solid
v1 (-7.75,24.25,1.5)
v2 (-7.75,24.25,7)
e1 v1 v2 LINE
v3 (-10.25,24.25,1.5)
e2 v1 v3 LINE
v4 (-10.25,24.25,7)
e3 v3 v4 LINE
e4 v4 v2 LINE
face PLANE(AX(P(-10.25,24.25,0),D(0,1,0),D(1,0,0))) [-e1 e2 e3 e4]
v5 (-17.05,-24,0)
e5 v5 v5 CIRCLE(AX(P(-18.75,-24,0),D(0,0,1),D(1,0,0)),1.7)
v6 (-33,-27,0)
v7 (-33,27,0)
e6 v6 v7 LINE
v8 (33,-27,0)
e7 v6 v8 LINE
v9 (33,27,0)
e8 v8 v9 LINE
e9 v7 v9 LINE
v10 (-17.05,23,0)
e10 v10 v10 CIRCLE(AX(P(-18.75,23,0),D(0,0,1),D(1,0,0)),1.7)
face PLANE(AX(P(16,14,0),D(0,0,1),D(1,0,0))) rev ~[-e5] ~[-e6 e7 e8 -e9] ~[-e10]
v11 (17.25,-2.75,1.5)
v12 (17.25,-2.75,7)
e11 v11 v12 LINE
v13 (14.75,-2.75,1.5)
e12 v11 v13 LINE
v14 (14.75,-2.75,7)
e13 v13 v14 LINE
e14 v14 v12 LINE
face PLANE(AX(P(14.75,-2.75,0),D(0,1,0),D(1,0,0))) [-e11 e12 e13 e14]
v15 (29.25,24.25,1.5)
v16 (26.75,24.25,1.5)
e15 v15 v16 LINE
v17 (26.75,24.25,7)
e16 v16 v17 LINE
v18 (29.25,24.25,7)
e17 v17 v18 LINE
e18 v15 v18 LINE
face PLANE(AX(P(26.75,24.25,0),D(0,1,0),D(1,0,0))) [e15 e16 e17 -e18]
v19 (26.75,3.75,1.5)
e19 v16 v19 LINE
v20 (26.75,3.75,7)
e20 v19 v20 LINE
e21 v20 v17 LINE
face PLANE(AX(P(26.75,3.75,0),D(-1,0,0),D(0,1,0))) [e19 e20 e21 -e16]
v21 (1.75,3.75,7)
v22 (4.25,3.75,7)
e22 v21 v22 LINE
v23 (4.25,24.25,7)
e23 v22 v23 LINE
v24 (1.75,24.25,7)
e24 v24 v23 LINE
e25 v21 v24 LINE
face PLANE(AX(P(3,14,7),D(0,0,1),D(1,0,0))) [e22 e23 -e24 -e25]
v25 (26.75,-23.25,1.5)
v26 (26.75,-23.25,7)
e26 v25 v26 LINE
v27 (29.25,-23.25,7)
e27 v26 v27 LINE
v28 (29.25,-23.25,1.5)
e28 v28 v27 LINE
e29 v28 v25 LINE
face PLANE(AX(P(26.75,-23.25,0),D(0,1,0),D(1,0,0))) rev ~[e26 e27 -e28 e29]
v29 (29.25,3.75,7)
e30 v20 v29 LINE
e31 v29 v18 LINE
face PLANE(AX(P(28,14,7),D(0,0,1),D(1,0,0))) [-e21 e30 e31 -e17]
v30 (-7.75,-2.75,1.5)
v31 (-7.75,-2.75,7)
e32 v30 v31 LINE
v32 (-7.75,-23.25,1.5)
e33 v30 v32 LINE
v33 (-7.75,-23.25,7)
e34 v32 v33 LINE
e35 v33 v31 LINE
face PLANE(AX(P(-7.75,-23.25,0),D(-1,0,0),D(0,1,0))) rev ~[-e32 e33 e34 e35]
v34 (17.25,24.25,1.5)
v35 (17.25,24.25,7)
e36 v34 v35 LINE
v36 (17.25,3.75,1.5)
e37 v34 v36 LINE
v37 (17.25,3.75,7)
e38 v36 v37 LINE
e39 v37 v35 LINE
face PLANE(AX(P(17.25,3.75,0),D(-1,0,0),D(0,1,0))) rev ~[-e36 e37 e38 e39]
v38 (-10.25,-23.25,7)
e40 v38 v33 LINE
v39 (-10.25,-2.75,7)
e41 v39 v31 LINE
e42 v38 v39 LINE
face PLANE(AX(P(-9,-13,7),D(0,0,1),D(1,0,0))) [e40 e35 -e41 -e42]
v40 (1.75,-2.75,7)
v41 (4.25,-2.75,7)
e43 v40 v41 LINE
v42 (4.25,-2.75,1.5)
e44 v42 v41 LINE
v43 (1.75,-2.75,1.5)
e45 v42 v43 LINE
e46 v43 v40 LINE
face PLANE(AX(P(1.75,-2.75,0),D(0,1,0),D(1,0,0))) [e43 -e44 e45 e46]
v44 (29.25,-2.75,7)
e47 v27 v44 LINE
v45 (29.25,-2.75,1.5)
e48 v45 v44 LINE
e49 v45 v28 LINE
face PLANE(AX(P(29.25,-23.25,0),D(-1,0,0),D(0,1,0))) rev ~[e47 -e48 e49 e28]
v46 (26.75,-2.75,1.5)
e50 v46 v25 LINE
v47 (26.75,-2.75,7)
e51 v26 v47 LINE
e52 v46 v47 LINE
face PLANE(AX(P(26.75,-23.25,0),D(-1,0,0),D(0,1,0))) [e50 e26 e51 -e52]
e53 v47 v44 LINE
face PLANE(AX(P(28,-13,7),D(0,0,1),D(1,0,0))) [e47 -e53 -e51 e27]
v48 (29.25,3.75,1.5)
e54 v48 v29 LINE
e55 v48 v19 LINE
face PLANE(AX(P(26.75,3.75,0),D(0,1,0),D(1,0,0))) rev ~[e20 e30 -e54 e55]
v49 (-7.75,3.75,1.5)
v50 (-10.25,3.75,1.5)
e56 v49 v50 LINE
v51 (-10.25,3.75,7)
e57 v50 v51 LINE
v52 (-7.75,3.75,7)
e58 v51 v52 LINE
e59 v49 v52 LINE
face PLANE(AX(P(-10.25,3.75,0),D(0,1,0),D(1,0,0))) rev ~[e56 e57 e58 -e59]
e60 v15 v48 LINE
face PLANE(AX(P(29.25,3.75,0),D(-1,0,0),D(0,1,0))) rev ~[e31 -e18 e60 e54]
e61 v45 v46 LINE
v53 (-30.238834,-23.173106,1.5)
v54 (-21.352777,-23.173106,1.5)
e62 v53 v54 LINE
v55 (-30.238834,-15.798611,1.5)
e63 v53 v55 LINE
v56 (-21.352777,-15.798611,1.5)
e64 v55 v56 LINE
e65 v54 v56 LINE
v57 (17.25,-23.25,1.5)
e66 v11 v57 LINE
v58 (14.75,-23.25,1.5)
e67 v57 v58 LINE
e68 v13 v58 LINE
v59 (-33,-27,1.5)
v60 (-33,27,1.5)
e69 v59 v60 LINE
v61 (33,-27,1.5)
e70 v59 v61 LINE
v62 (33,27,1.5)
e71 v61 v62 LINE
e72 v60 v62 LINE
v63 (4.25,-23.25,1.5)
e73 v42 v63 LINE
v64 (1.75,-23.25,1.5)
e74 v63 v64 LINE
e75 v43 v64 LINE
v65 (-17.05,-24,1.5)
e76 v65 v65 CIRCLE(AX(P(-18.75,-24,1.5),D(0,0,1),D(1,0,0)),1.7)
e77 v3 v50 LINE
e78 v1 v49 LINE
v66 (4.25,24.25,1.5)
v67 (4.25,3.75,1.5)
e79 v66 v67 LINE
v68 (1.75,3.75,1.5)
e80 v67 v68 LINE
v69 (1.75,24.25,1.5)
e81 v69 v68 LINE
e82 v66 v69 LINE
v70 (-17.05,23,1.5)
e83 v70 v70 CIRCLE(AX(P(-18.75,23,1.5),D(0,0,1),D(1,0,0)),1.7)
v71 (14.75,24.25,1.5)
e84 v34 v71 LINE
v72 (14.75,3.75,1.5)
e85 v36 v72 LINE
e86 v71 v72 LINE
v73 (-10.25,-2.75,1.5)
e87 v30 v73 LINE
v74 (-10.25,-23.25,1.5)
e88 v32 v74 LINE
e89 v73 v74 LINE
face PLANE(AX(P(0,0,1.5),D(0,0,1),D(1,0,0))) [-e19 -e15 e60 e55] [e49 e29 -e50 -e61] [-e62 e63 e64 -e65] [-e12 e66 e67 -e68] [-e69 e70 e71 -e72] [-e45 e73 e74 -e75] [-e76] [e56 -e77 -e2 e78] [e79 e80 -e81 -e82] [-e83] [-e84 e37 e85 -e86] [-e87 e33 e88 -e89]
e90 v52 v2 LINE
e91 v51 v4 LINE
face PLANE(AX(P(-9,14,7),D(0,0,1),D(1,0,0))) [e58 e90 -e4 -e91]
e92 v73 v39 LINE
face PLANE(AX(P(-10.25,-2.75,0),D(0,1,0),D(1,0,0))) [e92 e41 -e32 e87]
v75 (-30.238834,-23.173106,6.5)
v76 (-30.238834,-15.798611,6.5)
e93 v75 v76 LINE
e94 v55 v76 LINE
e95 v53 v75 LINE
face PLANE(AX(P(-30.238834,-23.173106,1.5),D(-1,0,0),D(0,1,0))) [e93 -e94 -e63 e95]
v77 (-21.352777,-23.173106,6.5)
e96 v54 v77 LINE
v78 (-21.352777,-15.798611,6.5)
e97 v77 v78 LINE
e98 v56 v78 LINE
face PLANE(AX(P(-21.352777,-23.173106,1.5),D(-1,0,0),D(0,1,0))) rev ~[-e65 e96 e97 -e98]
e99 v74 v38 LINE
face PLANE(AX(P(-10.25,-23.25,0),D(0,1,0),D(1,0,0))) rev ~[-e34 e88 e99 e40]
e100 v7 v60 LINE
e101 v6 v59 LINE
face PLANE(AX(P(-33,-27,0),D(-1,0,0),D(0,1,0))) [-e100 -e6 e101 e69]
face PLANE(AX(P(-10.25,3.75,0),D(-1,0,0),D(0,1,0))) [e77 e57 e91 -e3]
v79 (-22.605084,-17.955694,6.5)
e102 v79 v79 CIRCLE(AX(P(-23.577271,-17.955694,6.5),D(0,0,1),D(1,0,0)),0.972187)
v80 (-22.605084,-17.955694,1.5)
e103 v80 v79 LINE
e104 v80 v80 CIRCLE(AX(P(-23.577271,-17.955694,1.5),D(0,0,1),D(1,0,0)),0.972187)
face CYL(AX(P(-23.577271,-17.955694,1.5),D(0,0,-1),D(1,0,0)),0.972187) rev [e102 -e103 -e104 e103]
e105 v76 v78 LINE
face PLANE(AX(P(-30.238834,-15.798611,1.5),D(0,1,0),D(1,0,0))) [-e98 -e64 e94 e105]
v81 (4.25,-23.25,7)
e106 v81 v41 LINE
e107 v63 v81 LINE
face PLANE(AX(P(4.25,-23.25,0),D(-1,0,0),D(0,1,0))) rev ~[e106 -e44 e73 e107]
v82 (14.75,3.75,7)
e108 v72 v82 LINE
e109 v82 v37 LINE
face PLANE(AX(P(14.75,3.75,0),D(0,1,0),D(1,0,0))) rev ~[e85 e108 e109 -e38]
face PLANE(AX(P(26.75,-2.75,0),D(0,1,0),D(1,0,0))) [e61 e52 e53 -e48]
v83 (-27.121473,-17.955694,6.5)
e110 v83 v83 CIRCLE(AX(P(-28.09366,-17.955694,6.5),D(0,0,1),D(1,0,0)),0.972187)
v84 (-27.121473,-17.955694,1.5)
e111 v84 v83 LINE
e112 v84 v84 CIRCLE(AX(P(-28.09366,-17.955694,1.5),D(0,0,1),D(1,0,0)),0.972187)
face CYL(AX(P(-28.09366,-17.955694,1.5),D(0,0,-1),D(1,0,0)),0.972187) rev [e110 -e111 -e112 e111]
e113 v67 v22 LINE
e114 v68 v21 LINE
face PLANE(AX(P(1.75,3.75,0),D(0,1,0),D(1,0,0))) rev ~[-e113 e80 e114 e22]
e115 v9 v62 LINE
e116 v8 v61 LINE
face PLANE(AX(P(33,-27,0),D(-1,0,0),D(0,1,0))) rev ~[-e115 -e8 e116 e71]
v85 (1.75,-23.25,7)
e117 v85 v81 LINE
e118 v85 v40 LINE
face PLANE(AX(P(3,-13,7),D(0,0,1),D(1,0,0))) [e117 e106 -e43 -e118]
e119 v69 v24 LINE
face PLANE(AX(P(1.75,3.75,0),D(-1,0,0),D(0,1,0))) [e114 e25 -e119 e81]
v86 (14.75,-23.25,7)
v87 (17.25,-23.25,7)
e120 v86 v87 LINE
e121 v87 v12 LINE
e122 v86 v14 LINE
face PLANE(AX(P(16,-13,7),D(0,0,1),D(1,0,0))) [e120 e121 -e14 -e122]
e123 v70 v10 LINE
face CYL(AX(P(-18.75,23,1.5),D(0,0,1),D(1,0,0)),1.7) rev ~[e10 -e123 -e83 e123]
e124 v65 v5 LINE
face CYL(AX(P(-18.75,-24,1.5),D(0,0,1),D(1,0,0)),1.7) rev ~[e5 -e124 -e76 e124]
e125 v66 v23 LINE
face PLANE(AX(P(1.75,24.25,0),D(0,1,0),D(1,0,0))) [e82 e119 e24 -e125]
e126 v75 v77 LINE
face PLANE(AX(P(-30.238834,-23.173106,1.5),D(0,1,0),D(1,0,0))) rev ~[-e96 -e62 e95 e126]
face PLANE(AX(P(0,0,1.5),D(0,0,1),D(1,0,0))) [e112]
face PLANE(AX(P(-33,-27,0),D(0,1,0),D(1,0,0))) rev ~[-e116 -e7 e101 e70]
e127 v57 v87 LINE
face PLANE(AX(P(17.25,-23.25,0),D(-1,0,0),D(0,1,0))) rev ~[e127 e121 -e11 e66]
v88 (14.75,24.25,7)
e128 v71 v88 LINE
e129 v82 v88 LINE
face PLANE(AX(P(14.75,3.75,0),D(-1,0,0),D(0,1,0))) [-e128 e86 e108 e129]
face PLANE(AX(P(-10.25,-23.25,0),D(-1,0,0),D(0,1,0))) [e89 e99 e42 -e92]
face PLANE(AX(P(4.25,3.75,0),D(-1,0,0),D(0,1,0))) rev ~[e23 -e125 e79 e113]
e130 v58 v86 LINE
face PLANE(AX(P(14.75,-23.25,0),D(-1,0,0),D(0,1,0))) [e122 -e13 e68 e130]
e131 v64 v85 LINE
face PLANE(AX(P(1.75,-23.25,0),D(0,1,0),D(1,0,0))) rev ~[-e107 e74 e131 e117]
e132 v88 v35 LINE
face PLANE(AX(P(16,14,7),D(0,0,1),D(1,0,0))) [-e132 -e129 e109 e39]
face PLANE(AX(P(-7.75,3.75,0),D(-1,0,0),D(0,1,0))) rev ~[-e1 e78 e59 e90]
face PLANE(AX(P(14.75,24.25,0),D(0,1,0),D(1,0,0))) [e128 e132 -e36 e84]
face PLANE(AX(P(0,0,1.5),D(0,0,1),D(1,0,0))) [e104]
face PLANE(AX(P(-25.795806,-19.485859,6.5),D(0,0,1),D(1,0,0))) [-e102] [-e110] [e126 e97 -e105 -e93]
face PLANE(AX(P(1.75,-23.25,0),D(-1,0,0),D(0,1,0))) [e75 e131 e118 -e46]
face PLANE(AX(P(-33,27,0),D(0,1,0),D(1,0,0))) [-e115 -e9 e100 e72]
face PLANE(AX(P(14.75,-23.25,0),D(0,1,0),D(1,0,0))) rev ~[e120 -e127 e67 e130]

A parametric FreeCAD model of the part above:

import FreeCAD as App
import Part
import Sketcher

V = App.Vector

doc = App.newDocument("Part")
params = doc.addObject("Spreadsheet::Sheet", "Params")
for row, (alias, value) in enumerate([
    ("sketch1_width", "66 mm"),
    ("sketch1_height", "54 mm"),
    ("pad1_length", "1.5 mm"),
    ("sketch2_width", "2.5 mm"),
    ("sketch2_height", "20.5 mm"),
    ("pad2_length", "7 mm"),
    ("sketch3_width", "2.5 mm"),
    ("sketch3_height", "20.5 mm"),
    ("pad3_length", "7 mm"),
    ("linearpattern_pitch", "27 mm"),
    ("pad4_length", "5 mm"),
    ("sketch5_diameter", "3.4 mm"),
    ("pocket1_length", "25 mm"),
], start=1):
    params.set(f"A{row}", alias)
    params.set(f"B{row}", "=" + value)
    params.setAlias(f"B{row}", alias)

body = doc.addObject("PartDesign::Body", "Body")

# Sketch on XY plane
sketch1 = body.newObject("Sketcher::SketchObject", "Sketch")
sketch1.AttachmentSupport = (doc.getObject("XY_Plane"), [""])
sketch1.MapMode = "FlatFace"
sketch1.addGeometry(Part.LineSegment(V(-33, 27, 0), V(-33, -27, 0)), False)
sketch1.addGeometry(Part.LineSegment(V(-33, -27, 0), V(33, -27, 0)), False)
sketch1.addGeometry(Part.LineSegment(V(33, -27, 0), V(33, 27, 0)), False)
sketch1.addGeometry(Part.LineSegment(V(33, 27, 0), V(-33, 27, 0)), False)
sketch1.addConstraint(Sketcher.Constraint("Coincident", 0, 2, 1, 1))
sketch1.addConstraint(Sketcher.Constraint("Coincident", 1, 2, 2, 1))
sketch1.addConstraint(Sketcher.Constraint("Coincident", 2, 2, 3, 1))
sketch1.addConstraint(Sketcher.Constraint("Coincident", 3, 2, 0, 1))
sketch1.addConstraint(Sketcher.Constraint("Vertical", 0))
sketch1.addConstraint(Sketcher.Constraint("Horizontal", 1))
sketch1.addConstraint(Sketcher.Constraint("Vertical", 2))
sketch1.addConstraint(Sketcher.Constraint("Horizontal", 3))
sketch1.addConstraint(Sketcher.Constraint("Symmetric", 0, 2, 2, 2, -1, 1))
sketch1.addConstraint(Sketcher.Constraint("DistanceX", 1, 1, 1, 2, 66.0))
sketch1.addConstraint(Sketcher.Constraint("DistanceY", 0, 2, 0, 1, 54.0))
sketch1.setExpression("Constraints[9]", "Params.sketch1_width")
sketch1.setExpression("Constraints[10]", "Params.sketch1_height")
pad1 = body.newObject("PartDesign::Pad", "Pad")
pad1.Profile = sketch1
pad1.setExpression("Length", "Params.pad1_length")

# Sketch on XY plane
sketch2 = body.newObject("Sketcher::SketchObject", "Sketch001")
sketch2.AttachmentSupport = (doc.getObject("XY_Plane"), [""])
sketch2.MapMode = "FlatFace"
sketch2.addGeometry(Part.LineSegment(V(-10.2, -2.8, 0), V(-10.2, -23.2, 0)), False)
sketch2.addGeometry(Part.LineSegment(V(-10.2, -23.2, 0), V(-7.8, -23.2, 0)), False)
sketch2.addGeometry(Part.LineSegment(V(-7.8, -23.2, 0), V(-7.8, -2.8, 0)), False)
sketch2.addGeometry(Part.LineSegment(V(-7.8, -2.8, 0), V(-10.2, -2.8, 0)), False)
sketch2.addGeometry(Part.LineSegment(V(1.8, -2.8, 0), V(1.8, -23.2, 0)), False)
sketch2.addGeometry(Part.LineSegment(V(1.8, -23.2, 0), V(4.2, -23.2, 0)), False)
sketch2.addGeometry(Part.LineSegment(V(4.2, -23.2, 0), V(4.2, -2.8, 0)), False)
sketch2.addGeometry(Part.LineSegment(V(4.2, -2.8, 0), V(1.8, -2.8, 0)), False)
sketch2.addConstraint(Sketcher.Constraint("Coincident", 0, 2, 1, 1))
sketch2.addConstraint(Sketcher.Constraint("Coincident", 1, 2, 2, 1))
sketch2.addConstraint(Sketcher.Constraint("Coincident", 2, 2, 3, 1))
sketch2.addConstraint(Sketcher.Constraint("Coincident", 3, 2, 0, 1))
sketch2.addConstraint(Sketcher.Constraint("Coincident", 4, 2, 5, 1))
sketch2.addConstraint(Sketcher.Constraint("Coincident", 5, 2, 6, 1))
sketch2.addConstraint(Sketcher.Constraint("Coincident", 6, 2, 7, 1))
sketch2.addConstraint(Sketcher.Constraint("Coincident", 7, 2, 4, 1))
sketch2.addConstraint(Sketcher.Constraint("Vertical", 0))
sketch2.addConstraint(Sketcher.Constraint("Horizontal", 1))
sketch2.addConstraint(Sketcher.Constraint("Vertical", 2))
sketch2.addConstraint(Sketcher.Constraint("Horizontal", 3))
sketch2.addConstraint(Sketcher.Constraint("Vertical", 4))
sketch2.addConstraint(Sketcher.Constraint("Horizontal", 5))
sketch2.addConstraint(Sketcher.Constraint("Vertical", 6))
sketch2.addConstraint(Sketcher.Constraint("Horizontal", 7))
sketch2.addConstraint(Sketcher.Constraint("Horizontal", 1, 2, 4, 2))
sketch2.addConstraint(Sketcher.Constraint("Horizontal", 3, 2, 6, 2))
sketch2.addConstraint(Sketcher.Constraint("Equal", 3, 5))
sketch2.addConstraint(Sketcher.Constraint("DistanceX", 1, 1, 1, 2, 2.5))
sketch2.addConstraint(Sketcher.Constraint("DistanceY", 0, 2, 0, 1, 20.5))
sketch2.addConstraint(Sketcher.Constraint("DistanceX", 0, 2, 4, 2, 12.0))
sketch2.addConstraint(Sketcher.Constraint("DistanceX", 0, 2, -1, 1, 10.25))
sketch2.addConstraint(Sketcher.Constraint("DistanceY", 0, 2, -1, 1, 23.25))
sketch2.setExpression("Constraints[19]", "Params.sketch2_width")
sketch2.setExpression("Constraints[20]", "Params.sketch2_height")
pad2 = body.newObject("PartDesign::Pad", "Pad001")
pad2.Profile = sketch2
pad2.setExpression("Length", "Params.pad2_length")

# Sketch on XY plane
sketch3 = body.newObject("Sketcher::SketchObject", "Sketch002")
sketch3.AttachmentSupport = (doc.getObject("XY_Plane"), [""])
sketch3.MapMode = "FlatFace"
sketch3.addGeometry(Part.LineSegment(V(14.8, -2.8, 0), V(14.8, -23.2, 0)), False)
sketch3.addGeometry(Part.LineSegment(V(14.8, -23.2, 0), V(17.2, -23.2, 0)), False)
sketch3.addGeometry(Part.LineSegment(V(17.2, -23.2, 0), V(17.2, -2.8, 0)), False)
sketch3.addGeometry(Part.LineSegment(V(17.2, -2.8, 0), V(14.8, -2.8, 0)), False)
sketch3.addGeometry(Part.LineSegment(V(26.8, -2.8, 0), V(26.8, -23.2, 0)), False)
sketch3.addGeometry(Part.LineSegment(V(26.8, -23.2, 0), V(29.2, -23.2, 0)), False)
sketch3.addGeometry(Part.LineSegment(V(29.2, -23.2, 0), V(29.2, -2.8, 0)), False)
sketch3.addGeometry(Part.LineSegment(V(29.2, -2.8, 0), V(26.8, -2.8, 0)), False)
sketch3.addConstraint(Sketcher.Constraint("Coincident", 0, 2, 1, 1))
sketch3.addConstraint(Sketcher.Constraint("Coincident", 1, 2, 2, 1))
sketch3.addConstraint(Sketcher.Constraint("Coincident", 2, 2, 3, 1))
sketch3.addConstraint(Sketcher.Constraint("Coincident", 3, 2, 0, 1))
sketch3.addConstraint(Sketcher.Constraint("Coincident", 4, 2, 5, 1))
sketch3.addConstraint(Sketcher.Constraint("Coincident", 5, 2, 6, 1))
sketch3.addConstraint(Sketcher.Constraint("Coincident", 6, 2, 7, 1))
sketch3.addConstraint(Sketcher.Constraint("Coincident", 7, 2, 4, 1))
sketch3.addConstraint(Sketcher.Constraint("Vertical", 0))
sketch3.addConstraint(Sketcher.Constraint("Horizontal", 1))
sketch3.addConstraint(Sketcher.Constraint("Vertical", 2))
sketch3.addConstraint(Sketcher.Constraint("Horizontal", 3))
sketch3.addConstraint(Sketcher.Constraint("Vertical", 4))
sketch3.addConstraint(Sketcher.Constraint("Horizontal", 5))
sketch3.addConstraint(Sketcher.Constraint("Vertical", 6))
sketch3.addConstraint(Sketcher.Constraint("Horizontal", 7))
sketch3.addConstraint(Sketcher.Constraint("Horizontal", 1, 2, 4, 2))
sketch3.addConstraint(Sketcher.Constraint("Horizontal", 3, 2, 6, 2))
sketch3.addConstraint(Sketcher.Constraint("Equal", 3, 5))
sketch3.addConstraint(Sketcher.Constraint("DistanceX", 1, 1, 1, 2, 2.5))
sketch3.addConstraint(Sketcher.Constraint("DistanceY", 0, 2, 0, 1, 20.5))
sketch3.addConstraint(Sketcher.Constraint("DistanceX", 0, 2, 4, 2, 12.0))
sketch3.addConstraint(Sketcher.Constraint("DistanceX", -1, 1, 0, 2, 14.75))
sketch3.addConstraint(Sketcher.Constraint("DistanceY", 0, 2, -1, 1, 23.25))
sketch3.setExpression("Constraints[19]", "Params.sketch3_width")
sketch3.setExpression("Constraints[20]", "Params.sketch3_height")
pad3 = body.newObject("PartDesign::Pad", "Pad002")
pad3.Profile = sketch3
pad3.setExpression("Length", "Params.pad3_length")
doc.recompute()

linearpattern = body.newObject("PartDesign::LinearPattern", "LinearPattern")
linearpattern.Originals = [pad2, pad3]
linearpattern.Direction = (doc.getObject("Y_Axis"), [""])
linearpattern.Mode = "offset"
linearpattern.setExpression("Offset", "Params.linearpattern_pitch")
linearpattern.Occurrences = 2
body.Tip = linearpattern

# Sketch on XY plane
sketch4 = body.newObject("Sketcher::SketchObject", "Sketch003")
sketch4.AttachmentSupport = (doc.getObject("XY_Plane"), [""])
sketch4.MapMode = "FlatFace"
sketch4.AttachmentOffset = App.Placement(V(0, 0, 1.5), App.Rotation())
sketch4.addGeometry(Part.LineSegment(V(-30.2, -15.8, 0), V(-30.2, -23.2, 0)), False)
sketch4.addGeometry(Part.LineSegment(V(-30.2, -23.2, 0), V(-21.4, -23.2, 0)), False)
sketch4.addGeometry(Part.LineSegment(V(-21.4, -23.2, 0), V(-21.4, -15.8, 0)), False)
sketch4.addGeometry(Part.LineSegment(V(-21.4, -15.8, 0), V(-30.2, -15.8, 0)), False)
sketch4.addGeometry(Part.Circle(V(-28.1, -18, 0), V(0, 0, 1), 1), False)
sketch4.addGeometry(Part.Circle(V(-23.6, -18, 0), V(0, 0, 1), 1), False)
sketch4.addConstraint(Sketcher.Constraint("Coincident", 0, 2, 1, 1))
sketch4.addConstraint(Sketcher.Constraint("Coincident", 1, 2, 2, 1))
sketch4.addConstraint(Sketcher.Constraint("Coincident", 2, 2, 3, 1))
sketch4.addConstraint(Sketcher.Constraint("Coincident", 3, 2, 0, 1))
sketch4.addConstraint(Sketcher.Constraint("Vertical", 0))
sketch4.addConstraint(Sketcher.Constraint("Horizontal", 1))
sketch4.addConstraint(Sketcher.Constraint("Vertical", 2))
sketch4.addConstraint(Sketcher.Constraint("Horizontal", 3))
sketch4.addConstraint(Sketcher.Constraint("Equal", 4, 5))
sketch4.addConstraint(Sketcher.Constraint("Horizontal", 4, 3, 5, 3))
sketch4.addConstraint(Sketcher.Constraint("Diameter", 4, 1.944374))
sketch4.addConstraint(Sketcher.Constraint("DistanceX", 1, 1, 1, 2, 8.886057))
sketch4.addConstraint(Sketcher.Constraint("DistanceY", 0, 2, 0, 1, 7.374495))
sketch4.addConstraint(Sketcher.Constraint("DistanceX", 4, 3, -1, 1, 28.09366))
sketch4.addConstraint(Sketcher.Constraint("DistanceX", 5, 3, -1, 1, 23.577271))
sketch4.addConstraint(Sketcher.Constraint("DistanceY", 2, 2, -1, 1, 15.798611))
sketch4.addConstraint(Sketcher.Constraint("DistanceY", 4, 3, -1, 1, 17.955694))
sketch4.addConstraint(Sketcher.Constraint("DistanceX", 0, 2, -1, 1, 30.238834))
pad4 = body.newObject("PartDesign::Pad", "Pad003")
pad4.Profile = sketch4
pad4.setExpression("Length", "Params.pad4_length")

# Sketch on XY plane
sketch5 = body.newObject("Sketcher::SketchObject", "Sketch004")
sketch5.AttachmentSupport = (doc.getObject("XY_Plane"), [""])
sketch5.MapMode = "FlatFace"
sketch5.AttachmentOffset = App.Placement(V(0, 0, 1.5), App.Rotation())
sketch5.addGeometry(Part.Circle(V(-18.8, 23, 0), V(0, 0, 1), 1.7), False)
sketch5.addGeometry(Part.Circle(V(-18.8, -24, 0), V(0, 0, 1), 1.7), False)
sketch5.addConstraint(Sketcher.Constraint("Equal", 0, 1))
sketch5.addConstraint(Sketcher.Constraint("Vertical", 0, 3, 1, 3))
sketch5.addConstraint(Sketcher.Constraint("Diameter", 0, 3.4))
sketch5.addConstraint(Sketcher.Constraint("DistanceY", -1, 1, 0, 3, 23.0))
sketch5.addConstraint(Sketcher.Constraint("DistanceY", 1, 3, -1, 1, 24.0))
sketch5.addConstraint(Sketcher.Constraint("DistanceX", 0, 3, -1, 1, 18.75))
sketch5.setExpression("Constraints[2]", "Params.sketch5_diameter")
pocket1 = body.newObject("PartDesign::Pocket", "Pocket")
pocket1.Profile = sketch5
pocket1.setExpression("Length", "Params.pocket1_length")

doc.recompute()
